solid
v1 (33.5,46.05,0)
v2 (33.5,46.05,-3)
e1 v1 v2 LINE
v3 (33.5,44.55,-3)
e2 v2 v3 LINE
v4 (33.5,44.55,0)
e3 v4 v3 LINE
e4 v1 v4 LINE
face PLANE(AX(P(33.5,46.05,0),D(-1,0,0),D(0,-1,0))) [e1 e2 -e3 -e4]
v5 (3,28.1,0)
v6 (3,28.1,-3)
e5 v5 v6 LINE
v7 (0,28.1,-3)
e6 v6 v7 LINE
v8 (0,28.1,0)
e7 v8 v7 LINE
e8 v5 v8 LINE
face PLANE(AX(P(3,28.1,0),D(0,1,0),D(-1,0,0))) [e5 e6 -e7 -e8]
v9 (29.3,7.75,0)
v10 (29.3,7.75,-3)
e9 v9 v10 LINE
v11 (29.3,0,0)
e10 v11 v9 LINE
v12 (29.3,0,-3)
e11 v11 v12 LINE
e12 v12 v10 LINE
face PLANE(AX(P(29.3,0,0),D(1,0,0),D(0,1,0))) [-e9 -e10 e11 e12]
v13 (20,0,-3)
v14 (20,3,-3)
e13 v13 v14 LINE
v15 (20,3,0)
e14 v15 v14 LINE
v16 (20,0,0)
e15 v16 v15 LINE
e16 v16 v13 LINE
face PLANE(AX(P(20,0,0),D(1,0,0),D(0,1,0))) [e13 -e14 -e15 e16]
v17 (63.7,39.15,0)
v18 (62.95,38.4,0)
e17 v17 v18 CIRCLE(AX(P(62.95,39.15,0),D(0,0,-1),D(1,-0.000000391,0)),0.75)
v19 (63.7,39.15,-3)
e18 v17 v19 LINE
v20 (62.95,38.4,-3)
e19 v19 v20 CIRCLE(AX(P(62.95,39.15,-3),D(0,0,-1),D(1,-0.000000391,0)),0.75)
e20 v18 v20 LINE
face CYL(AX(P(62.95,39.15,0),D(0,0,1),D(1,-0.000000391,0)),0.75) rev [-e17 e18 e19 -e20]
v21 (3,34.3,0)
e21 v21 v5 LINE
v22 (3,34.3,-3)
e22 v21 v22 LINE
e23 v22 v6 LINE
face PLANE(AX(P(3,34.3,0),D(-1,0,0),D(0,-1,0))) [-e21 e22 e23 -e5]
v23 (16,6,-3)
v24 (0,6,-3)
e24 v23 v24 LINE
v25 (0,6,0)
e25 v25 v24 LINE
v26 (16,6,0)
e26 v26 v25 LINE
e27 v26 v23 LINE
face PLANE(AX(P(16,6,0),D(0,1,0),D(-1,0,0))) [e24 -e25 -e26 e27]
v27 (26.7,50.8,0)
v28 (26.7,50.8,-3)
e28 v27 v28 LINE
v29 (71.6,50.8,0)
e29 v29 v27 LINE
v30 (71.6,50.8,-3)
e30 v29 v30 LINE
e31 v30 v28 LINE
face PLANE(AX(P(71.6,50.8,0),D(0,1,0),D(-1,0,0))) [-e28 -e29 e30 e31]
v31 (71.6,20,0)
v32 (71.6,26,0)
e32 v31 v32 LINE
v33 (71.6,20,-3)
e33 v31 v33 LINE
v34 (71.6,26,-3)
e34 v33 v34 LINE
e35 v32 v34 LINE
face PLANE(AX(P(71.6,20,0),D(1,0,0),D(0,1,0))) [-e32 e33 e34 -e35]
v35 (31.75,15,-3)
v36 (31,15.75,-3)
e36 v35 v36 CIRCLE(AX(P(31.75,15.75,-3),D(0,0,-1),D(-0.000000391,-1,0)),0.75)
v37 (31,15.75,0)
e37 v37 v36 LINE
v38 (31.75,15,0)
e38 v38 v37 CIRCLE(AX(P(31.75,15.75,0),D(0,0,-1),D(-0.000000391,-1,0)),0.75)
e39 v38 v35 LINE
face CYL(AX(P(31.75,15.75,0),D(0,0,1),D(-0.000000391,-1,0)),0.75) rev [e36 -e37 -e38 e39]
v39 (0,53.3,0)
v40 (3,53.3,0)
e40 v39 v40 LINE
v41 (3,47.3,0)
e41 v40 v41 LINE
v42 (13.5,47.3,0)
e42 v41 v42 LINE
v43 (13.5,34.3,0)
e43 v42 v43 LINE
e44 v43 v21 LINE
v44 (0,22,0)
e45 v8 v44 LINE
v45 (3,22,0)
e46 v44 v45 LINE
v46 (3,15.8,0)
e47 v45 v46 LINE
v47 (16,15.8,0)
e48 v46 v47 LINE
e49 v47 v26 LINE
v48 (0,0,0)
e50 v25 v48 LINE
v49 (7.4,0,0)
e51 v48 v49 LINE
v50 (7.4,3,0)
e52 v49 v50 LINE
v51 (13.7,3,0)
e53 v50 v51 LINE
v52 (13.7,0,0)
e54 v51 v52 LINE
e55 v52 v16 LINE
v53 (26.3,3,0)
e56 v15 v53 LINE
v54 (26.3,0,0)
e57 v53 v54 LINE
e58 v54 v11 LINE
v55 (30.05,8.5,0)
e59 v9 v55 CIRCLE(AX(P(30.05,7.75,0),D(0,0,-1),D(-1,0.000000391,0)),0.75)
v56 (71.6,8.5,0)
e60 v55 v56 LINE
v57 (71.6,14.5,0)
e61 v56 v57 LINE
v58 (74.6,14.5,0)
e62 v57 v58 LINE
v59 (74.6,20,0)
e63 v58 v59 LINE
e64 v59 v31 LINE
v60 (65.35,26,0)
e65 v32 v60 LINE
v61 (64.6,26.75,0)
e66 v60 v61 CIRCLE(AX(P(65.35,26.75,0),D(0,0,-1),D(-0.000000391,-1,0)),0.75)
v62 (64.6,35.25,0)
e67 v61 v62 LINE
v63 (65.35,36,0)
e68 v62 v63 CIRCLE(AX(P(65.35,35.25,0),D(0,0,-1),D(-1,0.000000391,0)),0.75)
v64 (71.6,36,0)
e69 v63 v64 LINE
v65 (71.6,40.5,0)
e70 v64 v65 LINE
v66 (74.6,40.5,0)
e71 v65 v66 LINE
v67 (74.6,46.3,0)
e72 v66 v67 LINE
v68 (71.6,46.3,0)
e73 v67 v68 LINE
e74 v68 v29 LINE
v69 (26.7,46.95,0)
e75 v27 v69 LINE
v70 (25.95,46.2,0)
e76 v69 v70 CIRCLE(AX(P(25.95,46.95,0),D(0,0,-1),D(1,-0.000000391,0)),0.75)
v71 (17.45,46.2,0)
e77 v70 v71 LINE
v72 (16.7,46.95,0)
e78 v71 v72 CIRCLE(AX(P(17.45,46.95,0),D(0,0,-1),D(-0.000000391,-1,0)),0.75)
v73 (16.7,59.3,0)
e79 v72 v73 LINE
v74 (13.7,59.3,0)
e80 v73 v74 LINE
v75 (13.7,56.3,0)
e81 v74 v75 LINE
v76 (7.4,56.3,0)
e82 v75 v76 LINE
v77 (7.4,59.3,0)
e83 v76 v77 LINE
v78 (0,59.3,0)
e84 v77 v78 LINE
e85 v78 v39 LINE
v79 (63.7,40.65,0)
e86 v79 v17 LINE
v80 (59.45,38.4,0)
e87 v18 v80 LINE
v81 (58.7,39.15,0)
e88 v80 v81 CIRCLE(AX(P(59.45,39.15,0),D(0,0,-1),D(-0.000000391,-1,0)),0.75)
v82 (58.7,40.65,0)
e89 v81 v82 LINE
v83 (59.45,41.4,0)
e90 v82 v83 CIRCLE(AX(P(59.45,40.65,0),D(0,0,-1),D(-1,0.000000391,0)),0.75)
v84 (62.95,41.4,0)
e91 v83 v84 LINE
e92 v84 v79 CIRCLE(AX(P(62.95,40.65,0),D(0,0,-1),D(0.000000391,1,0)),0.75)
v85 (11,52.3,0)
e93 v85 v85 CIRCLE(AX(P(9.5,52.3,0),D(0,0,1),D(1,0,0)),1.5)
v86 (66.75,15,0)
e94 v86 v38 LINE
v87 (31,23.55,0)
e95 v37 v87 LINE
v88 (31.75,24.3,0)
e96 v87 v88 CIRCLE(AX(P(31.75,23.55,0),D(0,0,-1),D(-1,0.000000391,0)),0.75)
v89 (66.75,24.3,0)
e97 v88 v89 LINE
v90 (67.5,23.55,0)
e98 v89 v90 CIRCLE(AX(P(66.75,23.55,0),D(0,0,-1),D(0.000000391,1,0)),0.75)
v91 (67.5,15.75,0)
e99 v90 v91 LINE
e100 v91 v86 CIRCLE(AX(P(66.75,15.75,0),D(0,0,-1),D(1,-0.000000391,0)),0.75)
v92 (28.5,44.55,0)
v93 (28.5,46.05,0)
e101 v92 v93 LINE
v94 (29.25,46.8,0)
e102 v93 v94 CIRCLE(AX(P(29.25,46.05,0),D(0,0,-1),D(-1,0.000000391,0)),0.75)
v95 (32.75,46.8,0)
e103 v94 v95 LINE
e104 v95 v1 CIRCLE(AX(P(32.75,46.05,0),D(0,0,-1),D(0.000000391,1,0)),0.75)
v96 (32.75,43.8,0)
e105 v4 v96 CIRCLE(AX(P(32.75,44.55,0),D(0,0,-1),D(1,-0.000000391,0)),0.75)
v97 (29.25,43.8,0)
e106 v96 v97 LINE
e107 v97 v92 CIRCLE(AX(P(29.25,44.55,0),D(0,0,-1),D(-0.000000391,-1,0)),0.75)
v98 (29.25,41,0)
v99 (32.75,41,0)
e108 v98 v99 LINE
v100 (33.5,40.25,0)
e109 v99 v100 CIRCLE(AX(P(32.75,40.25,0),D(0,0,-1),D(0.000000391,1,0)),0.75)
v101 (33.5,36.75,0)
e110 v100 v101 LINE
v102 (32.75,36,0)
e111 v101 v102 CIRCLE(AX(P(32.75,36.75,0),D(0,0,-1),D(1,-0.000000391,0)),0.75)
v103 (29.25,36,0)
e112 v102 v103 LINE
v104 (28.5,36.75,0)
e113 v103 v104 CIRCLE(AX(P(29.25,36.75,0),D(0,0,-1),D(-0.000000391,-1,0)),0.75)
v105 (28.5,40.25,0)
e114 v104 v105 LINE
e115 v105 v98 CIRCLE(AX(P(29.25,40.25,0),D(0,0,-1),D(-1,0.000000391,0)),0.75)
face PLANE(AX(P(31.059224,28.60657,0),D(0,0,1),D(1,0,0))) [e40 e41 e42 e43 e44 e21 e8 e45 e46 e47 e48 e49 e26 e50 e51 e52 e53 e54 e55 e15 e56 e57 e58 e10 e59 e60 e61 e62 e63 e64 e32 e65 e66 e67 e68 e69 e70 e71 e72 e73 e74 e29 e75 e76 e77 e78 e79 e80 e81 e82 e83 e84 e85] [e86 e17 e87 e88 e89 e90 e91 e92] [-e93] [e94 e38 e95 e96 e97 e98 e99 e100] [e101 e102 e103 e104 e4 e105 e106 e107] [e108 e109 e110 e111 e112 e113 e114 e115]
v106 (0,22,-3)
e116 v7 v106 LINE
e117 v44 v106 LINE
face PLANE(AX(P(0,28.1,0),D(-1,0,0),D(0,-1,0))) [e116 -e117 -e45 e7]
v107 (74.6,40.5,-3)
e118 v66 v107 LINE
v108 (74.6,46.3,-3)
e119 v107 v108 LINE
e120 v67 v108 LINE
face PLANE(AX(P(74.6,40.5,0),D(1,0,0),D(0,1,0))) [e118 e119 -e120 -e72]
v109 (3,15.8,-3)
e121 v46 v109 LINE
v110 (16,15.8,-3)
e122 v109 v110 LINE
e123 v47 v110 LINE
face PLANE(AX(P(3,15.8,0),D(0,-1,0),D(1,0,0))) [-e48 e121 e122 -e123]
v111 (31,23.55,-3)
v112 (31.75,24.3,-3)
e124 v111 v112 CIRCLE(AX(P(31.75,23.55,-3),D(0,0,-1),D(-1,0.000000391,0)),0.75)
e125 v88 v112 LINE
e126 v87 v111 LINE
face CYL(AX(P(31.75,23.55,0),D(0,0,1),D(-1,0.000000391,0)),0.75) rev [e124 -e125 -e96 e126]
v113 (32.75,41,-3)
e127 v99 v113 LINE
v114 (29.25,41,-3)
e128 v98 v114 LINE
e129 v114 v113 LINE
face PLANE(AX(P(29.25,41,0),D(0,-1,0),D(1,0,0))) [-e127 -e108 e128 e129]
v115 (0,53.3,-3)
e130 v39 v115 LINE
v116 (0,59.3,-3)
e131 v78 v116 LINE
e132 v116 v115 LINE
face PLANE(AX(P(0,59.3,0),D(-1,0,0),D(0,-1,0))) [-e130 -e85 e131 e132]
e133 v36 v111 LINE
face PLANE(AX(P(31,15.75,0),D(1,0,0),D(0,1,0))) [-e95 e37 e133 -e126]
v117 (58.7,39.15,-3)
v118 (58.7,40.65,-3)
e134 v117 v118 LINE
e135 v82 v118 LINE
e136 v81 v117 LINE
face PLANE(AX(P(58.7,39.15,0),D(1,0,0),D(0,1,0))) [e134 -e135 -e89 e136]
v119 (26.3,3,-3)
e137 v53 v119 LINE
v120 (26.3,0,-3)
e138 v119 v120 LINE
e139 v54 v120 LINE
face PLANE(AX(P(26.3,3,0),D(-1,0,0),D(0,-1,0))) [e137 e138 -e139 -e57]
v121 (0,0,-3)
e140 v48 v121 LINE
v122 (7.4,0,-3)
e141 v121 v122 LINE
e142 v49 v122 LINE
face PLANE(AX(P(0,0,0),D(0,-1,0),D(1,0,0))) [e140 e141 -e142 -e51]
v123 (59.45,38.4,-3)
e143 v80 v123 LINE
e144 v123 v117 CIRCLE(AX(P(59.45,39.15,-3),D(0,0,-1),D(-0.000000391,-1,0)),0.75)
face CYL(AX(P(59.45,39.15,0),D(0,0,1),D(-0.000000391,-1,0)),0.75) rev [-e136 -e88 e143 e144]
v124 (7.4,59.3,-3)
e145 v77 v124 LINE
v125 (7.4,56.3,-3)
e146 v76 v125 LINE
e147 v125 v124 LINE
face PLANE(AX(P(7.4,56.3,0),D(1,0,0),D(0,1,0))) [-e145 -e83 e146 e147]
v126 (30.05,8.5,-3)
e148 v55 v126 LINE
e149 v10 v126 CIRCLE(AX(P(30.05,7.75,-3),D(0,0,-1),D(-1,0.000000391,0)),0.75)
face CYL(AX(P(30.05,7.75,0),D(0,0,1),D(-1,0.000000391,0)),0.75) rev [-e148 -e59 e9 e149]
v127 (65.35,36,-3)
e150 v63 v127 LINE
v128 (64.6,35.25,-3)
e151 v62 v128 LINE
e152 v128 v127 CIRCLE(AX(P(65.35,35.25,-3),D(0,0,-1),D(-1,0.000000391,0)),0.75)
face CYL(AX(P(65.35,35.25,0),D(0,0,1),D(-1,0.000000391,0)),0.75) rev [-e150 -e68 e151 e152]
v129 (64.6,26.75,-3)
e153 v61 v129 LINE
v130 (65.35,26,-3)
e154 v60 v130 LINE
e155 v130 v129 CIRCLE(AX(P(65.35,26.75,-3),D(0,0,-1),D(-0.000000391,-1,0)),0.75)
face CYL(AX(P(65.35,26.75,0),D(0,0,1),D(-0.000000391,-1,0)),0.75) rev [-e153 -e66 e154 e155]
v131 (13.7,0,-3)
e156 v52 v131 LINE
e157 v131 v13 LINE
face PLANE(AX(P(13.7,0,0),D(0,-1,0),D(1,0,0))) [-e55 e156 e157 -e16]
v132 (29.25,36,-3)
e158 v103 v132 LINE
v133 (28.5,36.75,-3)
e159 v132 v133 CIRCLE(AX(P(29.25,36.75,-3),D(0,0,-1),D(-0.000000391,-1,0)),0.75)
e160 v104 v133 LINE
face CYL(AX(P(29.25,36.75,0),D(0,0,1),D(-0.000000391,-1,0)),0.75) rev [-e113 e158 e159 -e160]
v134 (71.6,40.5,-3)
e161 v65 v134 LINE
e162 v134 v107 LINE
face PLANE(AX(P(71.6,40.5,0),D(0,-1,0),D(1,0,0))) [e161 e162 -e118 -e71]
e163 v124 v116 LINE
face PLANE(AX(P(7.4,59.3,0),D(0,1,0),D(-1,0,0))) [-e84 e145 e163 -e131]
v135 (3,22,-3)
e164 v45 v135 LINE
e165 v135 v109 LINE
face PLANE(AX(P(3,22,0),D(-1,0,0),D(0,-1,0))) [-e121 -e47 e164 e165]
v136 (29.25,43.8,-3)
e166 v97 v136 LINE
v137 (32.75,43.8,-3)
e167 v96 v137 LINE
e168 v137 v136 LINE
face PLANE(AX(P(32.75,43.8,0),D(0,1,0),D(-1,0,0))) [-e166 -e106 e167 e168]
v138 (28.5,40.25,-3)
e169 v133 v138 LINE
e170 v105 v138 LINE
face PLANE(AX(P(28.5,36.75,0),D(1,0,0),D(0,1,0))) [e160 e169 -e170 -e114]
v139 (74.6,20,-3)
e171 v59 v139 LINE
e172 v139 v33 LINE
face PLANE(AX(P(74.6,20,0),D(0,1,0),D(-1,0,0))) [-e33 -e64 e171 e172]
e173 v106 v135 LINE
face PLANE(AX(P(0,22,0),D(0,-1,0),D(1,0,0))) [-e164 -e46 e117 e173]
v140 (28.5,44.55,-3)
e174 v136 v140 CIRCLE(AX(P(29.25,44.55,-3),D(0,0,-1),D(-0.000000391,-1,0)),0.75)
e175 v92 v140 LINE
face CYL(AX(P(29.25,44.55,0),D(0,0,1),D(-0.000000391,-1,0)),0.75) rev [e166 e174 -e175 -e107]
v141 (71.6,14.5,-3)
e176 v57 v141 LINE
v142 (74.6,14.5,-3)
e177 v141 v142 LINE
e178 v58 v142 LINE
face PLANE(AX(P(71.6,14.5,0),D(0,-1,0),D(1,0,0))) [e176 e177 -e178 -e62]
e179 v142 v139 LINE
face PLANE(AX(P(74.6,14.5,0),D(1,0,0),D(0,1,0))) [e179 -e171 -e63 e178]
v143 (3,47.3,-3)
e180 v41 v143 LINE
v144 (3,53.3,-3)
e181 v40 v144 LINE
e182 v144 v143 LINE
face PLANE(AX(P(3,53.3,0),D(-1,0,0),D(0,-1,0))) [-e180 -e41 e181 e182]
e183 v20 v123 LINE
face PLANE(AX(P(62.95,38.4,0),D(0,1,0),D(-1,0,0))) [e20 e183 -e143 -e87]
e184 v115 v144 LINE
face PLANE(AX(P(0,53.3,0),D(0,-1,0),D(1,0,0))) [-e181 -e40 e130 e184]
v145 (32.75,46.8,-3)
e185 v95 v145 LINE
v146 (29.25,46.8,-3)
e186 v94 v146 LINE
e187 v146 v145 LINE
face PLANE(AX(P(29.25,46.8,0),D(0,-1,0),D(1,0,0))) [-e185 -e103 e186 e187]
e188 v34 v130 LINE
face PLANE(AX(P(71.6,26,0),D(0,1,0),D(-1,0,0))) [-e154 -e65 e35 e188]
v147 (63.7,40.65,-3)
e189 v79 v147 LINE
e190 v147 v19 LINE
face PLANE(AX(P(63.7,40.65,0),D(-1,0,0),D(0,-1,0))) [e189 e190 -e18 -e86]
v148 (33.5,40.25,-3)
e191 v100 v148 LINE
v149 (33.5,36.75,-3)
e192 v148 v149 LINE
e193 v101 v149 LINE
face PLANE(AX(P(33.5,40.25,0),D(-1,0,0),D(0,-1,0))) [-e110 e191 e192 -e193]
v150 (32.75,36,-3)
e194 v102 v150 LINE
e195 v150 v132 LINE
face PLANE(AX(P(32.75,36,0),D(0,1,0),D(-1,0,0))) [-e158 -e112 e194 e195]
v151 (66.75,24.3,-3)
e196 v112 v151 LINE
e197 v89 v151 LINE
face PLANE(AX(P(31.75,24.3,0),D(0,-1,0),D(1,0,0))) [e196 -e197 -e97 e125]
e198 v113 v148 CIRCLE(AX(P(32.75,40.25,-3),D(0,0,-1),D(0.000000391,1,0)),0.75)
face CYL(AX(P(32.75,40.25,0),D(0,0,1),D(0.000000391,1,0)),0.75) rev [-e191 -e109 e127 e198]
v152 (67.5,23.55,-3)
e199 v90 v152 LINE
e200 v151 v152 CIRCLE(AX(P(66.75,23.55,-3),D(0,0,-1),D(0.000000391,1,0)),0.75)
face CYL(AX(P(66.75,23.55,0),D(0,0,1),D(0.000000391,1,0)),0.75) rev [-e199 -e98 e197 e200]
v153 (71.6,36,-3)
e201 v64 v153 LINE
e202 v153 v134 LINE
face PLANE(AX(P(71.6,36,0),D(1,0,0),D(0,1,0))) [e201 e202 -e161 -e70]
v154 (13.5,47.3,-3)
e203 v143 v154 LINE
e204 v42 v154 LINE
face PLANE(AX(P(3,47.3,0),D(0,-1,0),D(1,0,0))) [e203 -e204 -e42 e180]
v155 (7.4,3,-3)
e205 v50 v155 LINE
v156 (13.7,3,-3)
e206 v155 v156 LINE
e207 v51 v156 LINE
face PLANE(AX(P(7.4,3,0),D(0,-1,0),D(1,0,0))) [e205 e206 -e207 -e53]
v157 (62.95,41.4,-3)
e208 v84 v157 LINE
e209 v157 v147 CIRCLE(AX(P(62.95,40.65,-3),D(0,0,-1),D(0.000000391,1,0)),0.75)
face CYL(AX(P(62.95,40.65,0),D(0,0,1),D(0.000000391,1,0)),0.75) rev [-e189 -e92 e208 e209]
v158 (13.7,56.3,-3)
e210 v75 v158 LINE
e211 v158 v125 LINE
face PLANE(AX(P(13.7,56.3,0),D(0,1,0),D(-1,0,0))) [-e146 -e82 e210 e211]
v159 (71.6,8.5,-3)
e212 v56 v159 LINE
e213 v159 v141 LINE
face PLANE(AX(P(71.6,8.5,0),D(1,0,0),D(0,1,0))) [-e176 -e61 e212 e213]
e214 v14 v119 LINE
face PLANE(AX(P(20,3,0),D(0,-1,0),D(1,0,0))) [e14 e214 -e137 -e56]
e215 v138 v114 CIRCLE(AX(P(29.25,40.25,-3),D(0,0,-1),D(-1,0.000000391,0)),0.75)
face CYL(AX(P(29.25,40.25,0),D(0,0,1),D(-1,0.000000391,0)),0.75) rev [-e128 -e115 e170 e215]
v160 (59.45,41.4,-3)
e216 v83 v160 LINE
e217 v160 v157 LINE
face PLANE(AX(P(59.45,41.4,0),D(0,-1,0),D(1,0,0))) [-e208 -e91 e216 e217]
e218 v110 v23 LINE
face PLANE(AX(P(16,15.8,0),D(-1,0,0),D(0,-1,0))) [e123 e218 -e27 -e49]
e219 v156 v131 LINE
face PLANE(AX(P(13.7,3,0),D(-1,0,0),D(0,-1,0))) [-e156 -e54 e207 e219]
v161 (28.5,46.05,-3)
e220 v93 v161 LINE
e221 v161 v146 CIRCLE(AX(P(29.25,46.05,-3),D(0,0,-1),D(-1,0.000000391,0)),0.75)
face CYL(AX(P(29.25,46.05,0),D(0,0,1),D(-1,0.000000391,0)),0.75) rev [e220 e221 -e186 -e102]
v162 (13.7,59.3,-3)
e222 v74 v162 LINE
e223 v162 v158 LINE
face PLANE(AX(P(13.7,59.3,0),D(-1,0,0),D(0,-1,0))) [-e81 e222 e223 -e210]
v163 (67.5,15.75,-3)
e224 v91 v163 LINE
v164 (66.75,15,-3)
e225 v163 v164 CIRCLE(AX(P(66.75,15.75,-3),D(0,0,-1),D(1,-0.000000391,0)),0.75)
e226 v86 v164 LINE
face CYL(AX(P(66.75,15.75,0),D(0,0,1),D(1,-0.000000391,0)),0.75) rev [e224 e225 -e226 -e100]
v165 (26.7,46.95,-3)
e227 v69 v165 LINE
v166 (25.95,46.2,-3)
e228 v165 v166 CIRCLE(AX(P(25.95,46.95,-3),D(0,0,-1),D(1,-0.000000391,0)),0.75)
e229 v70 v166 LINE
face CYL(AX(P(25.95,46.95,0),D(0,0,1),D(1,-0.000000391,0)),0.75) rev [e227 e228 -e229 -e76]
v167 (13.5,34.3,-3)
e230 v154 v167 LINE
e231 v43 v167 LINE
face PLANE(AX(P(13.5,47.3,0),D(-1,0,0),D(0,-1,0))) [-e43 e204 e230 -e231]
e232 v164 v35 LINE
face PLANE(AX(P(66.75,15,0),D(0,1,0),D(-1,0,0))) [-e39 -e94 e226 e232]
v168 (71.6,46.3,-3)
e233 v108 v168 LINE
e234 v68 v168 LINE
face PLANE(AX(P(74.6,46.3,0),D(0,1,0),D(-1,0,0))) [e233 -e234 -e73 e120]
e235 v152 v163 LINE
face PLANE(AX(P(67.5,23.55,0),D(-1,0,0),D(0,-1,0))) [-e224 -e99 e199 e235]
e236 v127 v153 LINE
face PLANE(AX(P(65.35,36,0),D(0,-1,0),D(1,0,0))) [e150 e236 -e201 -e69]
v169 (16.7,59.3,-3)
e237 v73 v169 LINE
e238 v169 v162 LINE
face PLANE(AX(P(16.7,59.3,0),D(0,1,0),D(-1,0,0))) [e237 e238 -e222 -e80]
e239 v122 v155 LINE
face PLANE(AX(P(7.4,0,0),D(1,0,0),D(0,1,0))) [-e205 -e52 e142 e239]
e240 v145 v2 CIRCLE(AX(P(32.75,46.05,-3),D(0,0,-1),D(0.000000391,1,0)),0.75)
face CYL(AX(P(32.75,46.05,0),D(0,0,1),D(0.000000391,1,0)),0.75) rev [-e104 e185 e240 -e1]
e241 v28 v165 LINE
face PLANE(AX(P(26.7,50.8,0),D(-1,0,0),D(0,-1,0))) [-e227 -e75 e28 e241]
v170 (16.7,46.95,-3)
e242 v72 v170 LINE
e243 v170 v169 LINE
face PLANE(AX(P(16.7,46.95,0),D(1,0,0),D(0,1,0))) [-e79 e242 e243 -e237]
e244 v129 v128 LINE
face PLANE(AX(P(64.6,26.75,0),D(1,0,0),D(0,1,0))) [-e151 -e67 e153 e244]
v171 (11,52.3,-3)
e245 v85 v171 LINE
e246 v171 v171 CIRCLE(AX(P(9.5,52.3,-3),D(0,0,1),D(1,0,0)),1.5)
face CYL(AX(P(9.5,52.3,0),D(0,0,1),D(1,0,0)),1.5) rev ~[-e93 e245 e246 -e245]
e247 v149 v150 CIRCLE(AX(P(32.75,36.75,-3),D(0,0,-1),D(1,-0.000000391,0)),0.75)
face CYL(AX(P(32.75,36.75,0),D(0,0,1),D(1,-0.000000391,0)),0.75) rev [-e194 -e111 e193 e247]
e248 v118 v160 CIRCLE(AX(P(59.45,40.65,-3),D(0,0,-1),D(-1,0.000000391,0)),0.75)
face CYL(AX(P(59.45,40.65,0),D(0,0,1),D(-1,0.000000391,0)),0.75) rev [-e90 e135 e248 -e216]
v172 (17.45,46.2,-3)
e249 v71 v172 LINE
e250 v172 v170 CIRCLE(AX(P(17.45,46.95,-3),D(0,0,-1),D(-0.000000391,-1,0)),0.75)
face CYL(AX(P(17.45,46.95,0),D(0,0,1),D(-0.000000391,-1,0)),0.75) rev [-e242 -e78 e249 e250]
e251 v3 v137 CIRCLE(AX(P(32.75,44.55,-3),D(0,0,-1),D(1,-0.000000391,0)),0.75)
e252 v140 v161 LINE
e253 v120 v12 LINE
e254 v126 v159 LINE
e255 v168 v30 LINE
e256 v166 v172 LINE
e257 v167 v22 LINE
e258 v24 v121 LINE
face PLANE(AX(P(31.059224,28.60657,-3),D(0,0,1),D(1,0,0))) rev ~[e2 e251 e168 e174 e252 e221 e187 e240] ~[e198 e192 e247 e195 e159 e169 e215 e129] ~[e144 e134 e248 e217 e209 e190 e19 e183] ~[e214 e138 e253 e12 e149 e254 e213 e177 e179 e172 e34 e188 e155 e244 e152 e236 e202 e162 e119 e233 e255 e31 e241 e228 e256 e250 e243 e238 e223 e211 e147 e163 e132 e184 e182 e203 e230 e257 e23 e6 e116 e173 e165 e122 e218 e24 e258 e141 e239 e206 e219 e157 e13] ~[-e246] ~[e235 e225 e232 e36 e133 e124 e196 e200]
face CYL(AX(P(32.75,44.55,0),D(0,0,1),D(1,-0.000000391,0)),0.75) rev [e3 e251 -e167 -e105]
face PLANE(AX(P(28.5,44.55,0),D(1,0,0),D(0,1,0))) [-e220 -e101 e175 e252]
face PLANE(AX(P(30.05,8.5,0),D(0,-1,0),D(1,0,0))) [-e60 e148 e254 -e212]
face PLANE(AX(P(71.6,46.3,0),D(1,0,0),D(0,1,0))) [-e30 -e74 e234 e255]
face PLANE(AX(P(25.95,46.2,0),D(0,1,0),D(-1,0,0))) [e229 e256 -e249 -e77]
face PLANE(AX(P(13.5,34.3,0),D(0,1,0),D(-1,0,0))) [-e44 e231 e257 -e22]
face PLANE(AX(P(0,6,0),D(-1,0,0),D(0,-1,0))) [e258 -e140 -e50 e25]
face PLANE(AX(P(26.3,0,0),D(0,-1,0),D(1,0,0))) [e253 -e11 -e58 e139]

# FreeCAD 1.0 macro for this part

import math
import FreeCAD as App
import Part
import Sketcher

V = App.Vector

doc = App.newDocument("Part")
body = doc.addObject("PartDesign::Body", "Body")

sketch1 = body.newObject("Sketcher::SketchObject", "Sketch")
sketch1.AttachmentSupport = (doc.getObject("XY_Plane"), [""])
sketch1.MapMode = "FlatFace"
sketch1.addGeometry(Part.LineSegment(V(0, 6, 0), V(0, 0, 0)), False)
sketch1.addGeometry(Part.LineSegment(V(0, 0, 0), V(7.4, 0, 0)), False)
sketch1.addGeometry(Part.LineSegment(V(7.4, 0, 0), V(7.4, 3, 0)), False)
sketch1.addGeometry(Part.LineSegment(V(7.4, 3, 0), V(13.7, 3, 0)), False)
sketch1.addGeometry(Part.LineSegment(V(13.7, 3, 0), V(13.7, 0, 0)), False)
sketch1.addGeometry(Part.LineSegment(V(13.7, 0, 0), V(20, 0, 0)), False)
sketch1.addGeometry(Part.LineSegment(V(20, 0, 0), V(20, 3, 0)), False)
sketch1.addGeometry(Part.LineSegment(V(20, 3, 0), V(26.3, 3, 0)), False)
sketch1.addGeometry(Part.LineSegment(V(26.3, 3, 0), V(26.3, 0, 0)), False)
sketch1.addGeometry(Part.LineSegment(V(26.3, 0, 0), V(29.3, 0, 0)), False)
sketch1.addGeometry(Part.LineSegment(V(29.3, 0, 0), V(29.3, 7.75, 0)), False)
sketch1.addGeometry(Part.ArcOfCircle(Part.Circle(V(30.05, 7.75, 0), V(0, 0, 1), 0.75), math.radians(90.000022), math.radians(179.999978)), False)
sketch1.addGeometry(Part.LineSegment(V(30.05, 8.5, 0), V(71.6, 8.5, 0)), False)
sketch1.addGeometry(Part.LineSegment(V(71.6, 8.5, 0), V(71.6, 14.5, 0)), False)
sketch1.addGeometry(Part.LineSegment(V(71.6, 14.5, 0), V(74.6, 14.5, 0)), False)
sketch1.addGeometry(Part.LineSegment(V(74.6, 14.5, 0), V(74.6, 20, 0)), False)
sketch1.addGeometry(Part.LineSegment(V(74.6, 20, 0), V(71.6, 20, 0)), False)
sketch1.addGeometry(Part.LineSegment(V(71.6, 20, 0), V(71.6, 26, 0)), False)
sketch1.addGeometry(Part.LineSegment(V(71.6, 26, 0), V(65.35, 26, 0)), False)
sketch1.addGeometry(Part.ArcOfCircle(Part.Circle(V(65.35, 26.75, 0), V(0, 0, 1), 0.75), math.radians(-179.999978), math.radians(-90.000022)), False)
sketch1.addGeometry(Part.LineSegment(V(64.6, 26.75, 0), V(64.6, 35.25, 0)), False)
sketch1.addGeometry(Part.ArcOfCircle(Part.Circle(V(65.35, 35.25, 0), V(0, 0, 1), 0.75), math.radians(90.000022), math.radians(179.999978)), False)
sketch1.addGeometry(Part.LineSegment(V(65.35, 36, 0), V(71.6, 36, 0)), False)
sketch1.addGeometry(Part.LineSegment(V(71.6, 36, 0), V(71.6, 40.5, 0)), False)
sketch1.addGeometry(Part.LineSegment(V(71.6, 40.5, 0), V(74.6, 40.5, 0)), False)
sketch1.addGeometry(Part.LineSegment(V(74.6, 40.5, 0), V(74.6, 46.3, 0)), False)
sketch1.addGeometry(Part.LineSegment(V(74.6, 46.3, 0), V(71.6, 46.3, 0)), False)
sketch1.addGeometry(Part.LineSegment(V(71.6, 46.3, 0), V(71.6, 50.8, 0)), False)
sketch1.addGeometry(Part.LineSegment(V(71.6, 50.8, 0), V(26.7, 50.8, 0)), False)
sketch1.addGeometry(Part.LineSegment(V(26.7, 50.8, 0), V(26.7, 46.95, 0)), False)
sketch1.addGeometry(Part.ArcOfCircle(Part.Circle(V(25.95, 46.95, 0), V(0, 0, 1), 0.75), math.radians(-89.999978), math.radians(-0.000022)), False)
sketch1.addGeometry(Part.LineSegment(V(25.95, 46.2, 0), V(17.45, 46.2, 0)), False)
sketch1.addGeometry(Part.ArcOfCircle(Part.Circle(V(17.45, 46.95, 0), V(0, 0, 1), 0.75), math.radians(-179.999978), math.radians(-90.000022)), False)
sketch1.addGeometry(Part.LineSegment(V(16.7, 46.95, 0), V(16.7, 59.3, 0)), False)
sketch1.addGeometry(Part.LineSegment(V(16.7, 59.3, 0), V(13.7, 59.3, 0)), False)
sketch1.addGeometry(Part.LineSegment(V(13.7, 59.3, 0), V(13.7, 56.3, 0)), False)
sketch1.addGeometry(Part.LineSegment(V(13.7, 56.3, 0), V(7.4, 56.3, 0)), False)
sketch1.addGeometry(Part.LineSegment(V(7.4, 56.3, 0), V(7.4, 59.3, 0)), False)
sketch1.addGeometry(Part.LineSegment(V(7.4, 59.3, 0), V(0, 59.3, 0)), False)
sketch1.addGeometry(Part.LineSegment(V(0, 59.3, 0), V(0, 53.3, 0)), False)
sketch1.addGeometry(Part.LineSegment(V(0, 53.3, 0), V(3, 53.3, 0)), False)
sketch1.addGeometry(Part.LineSegment(V(3, 53.3, 0), V(3, 47.3, 0)), False)
sketch1.addGeometry(Part.LineSegment(V(3, 47.3, 0), V(13.5, 47.3, 0)), False)
sketch1.addGeometry(Part.LineSegment(V(13.5, 47.3, 0), V(13.5, 34.3, 0)), False)
sketch1.addGeometry(Part.LineSegment(V(13.5, 34.3, 0), V(3, 34.3, 0)), False)
sketch1.addGeometry(Part.LineSegment(V(3, 34.3, 0), V(3, 28.1, 0)), False)
sketch1.addGeometry(Part.LineSegment(V(3, 28.1, 0), V(0, 28.1, 0)), False)
sketch1.addGeometry(Part.LineSegment(V(0, 28.1, 0), V(0, 22, 0)), False)
sketch1.addGeometry(Part.LineSegment(V(0, 22, 0), V(3, 22, 0)), False)
sketch1.addGeometry(Part.LineSegment(V(3, 22, 0), V(3, 15.8, 0)), False)
sketch1.addGeometry(Part.LineSegment(V(3, 15.8, 0), V(16, 15.8, 0)), False)
sketch1.addGeometry(Part.LineSegment(V(16, 15.8, 0), V(16, 6, 0)), False)
sketch1.addGeometry(Part.LineSegment(V(16, 6, 0), V(0, 6, 0)), False)
sketch1.addGeometry(Part.ArcOfCircle(Part.Circle(V(66.75, 15.75, 0), V(0, 0, 1), 0.75), math.radians(-89.999978), math.radians(-0.000022)), False)
sketch1.addGeometry(Part.LineSegment(V(66.75, 15, 0), V(31.75, 15, 0)), False)
sketch1.addGeometry(Part.ArcOfCircle(Part.Circle(V(31.75, 15.75, 0), V(0, 0, 1), 0.75), math.radians(-179.999978), math.radians(-90.000022)), False)
sketch1.addGeometry(Part.LineSegment(V(31, 15.75, 0), V(31, 23.55, 0)), False)
sketch1.addGeometry(Part.ArcOfCircle(Part.Circle(V(31.75, 23.55, 0), V(0, 0, 1), 0.75), math.radians(90.000022), math.radians(179.999978)), False)
sketch1.addGeometry(Part.LineSegment(V(31.75, 24.3, 0), V(66.75, 24.3, 0)), False)
sketch1.addGeometry(Part.ArcOfCircle(Part.Circle(V(66.75, 23.55, 0), V(0, 0, 1), 0.75), math.radians(0.000022), math.radians(89.999978)), False)
sketch1.addGeometry(Part.LineSegment(V(67.5, 23.55, 0), V(67.5, 15.75, 0)), False)
sketch1.addGeometry(Part.ArcOfCircle(Part.Circle(V(32.75, 36.75, 0), V(0, 0, 1), 0.75), math.radians(-89.999978), math.radians(-0.000022)), False)
sketch1.addGeometry(Part.LineSegment(V(32.75, 36, 0), V(29.25, 36, 0)), False)
sketch1.addGeometry(Part.ArcOfCircle(Part.Circle(V(29.25, 36.75, 0), V(0, 0, 1), 0.75), math.radians(-179.999978), math.radians(-90.000022)), False)
sketch1.addGeometry(Part.LineSegment(V(28.5, 36.75, 0), V(28.5, 40.25, 0)), False)
sketch1.addGeometry(Part.ArcOfCircle(Part.Circle(V(29.25, 40.25, 0), V(0, 0, 1), 0.75), math.radians(90.000022), math.radians(179.999978)), False)
sketch1.addGeometry(Part.LineSegment(V(29.25, 41, 0), V(32.75, 41, 0)), False)
sketch1.addGeometry(Part.ArcOfCircle(Part.Circle(V(32.75, 40.25, 0), V(0, 0, 1), 0.75), math.radians(0.000022), math.radians(89.999978)), False)
sketch1.addGeometry(Part.LineSegment(V(33.5, 40.25, 0), V(33.5, 36.75, 0)), False)
sketch1.addGeometry(Part.Circle(V(9.5, 52.3, 0), V(0, 0, 1), 1.5), False)
sketch1.addGeometry(Part.ArcOfCircle(Part.Circle(V(32.75, 44.55, 0), V(0, 0, 1), 0.75), math.radians(-89.999978), math.radians(-0.000022)), False)
sketch1.addGeometry(Part.LineSegment(V(32.75, 43.8, 0), V(29.25, 43.8, 0)), False)
sketch1.addGeometry(Part.ArcOfCircle(Part.Circle(V(29.25, 44.55, 0), V(0, 0, 1), 0.75), math.radians(-179.999978), math.radians(-90.000022)), False)
sketch1.addGeometry(Part.LineSegment(V(28.5, 44.55, 0), V(28.5, 46.05, 0)), False)
sketch1.addGeometry(Part.ArcOfCircle(Part.Circle(V(29.25, 46.05, 0), V(0, 0, 1), 0.75), math.radians(90.000022), math.radians(179.999978)), False)
sketch1.addGeometry(Part.LineSegment(V(29.25, 46.8, 0), V(32.75, 46.8, 0)), False)
sketch1.addGeometry(Part.ArcOfCircle(Part.Circle(V(32.75, 46.05, 0), V(0, 0, 1), 0.75), math.radians(0.000022), math.radians(89.999978)), False)
sketch1.addGeometry(Part.LineSegment(V(33.5, 46.05, 0), V(33.5, 44.55, 0)), False)
sketch1.addGeometry(Part.ArcOfCircle(Part.Circle(V(62.95, 39.15, 0), V(0, 0, 1), 0.75), math.radians(-89.999978), math.radians(-0.000022)), False)
sketch1.addGeometry(Part.LineSegment(V(62.95, 38.4, 0), V(59.45, 38.4, 0)), False)
sketch1.addGeometry(Part.ArcOfCircle(Part.Circle(V(59.45, 39.15, 0), V(0, 0, 1), 0.75), math.radians(-179.999978), math.radians(-90.000022)), False)
sketch1.addGeometry(Part.LineSegment(V(58.7, 39.15, 0), V(58.7, 40.65, 0)), False)
sketch1.addGeometry(Part.ArcOfCircle(Part.Circle(V(59.45, 40.65, 0), V(0, 0, 1), 0.75), math.radians(90.000022), math.radians(179.999978)), False)
sketch1.addGeometry(Part.LineSegment(V(59.45, 41.4, 0), V(62.95, 41.4, 0)), False)
sketch1.addGeometry(Part.ArcOfCircle(Part.Circle(V(62.95, 40.65, 0), V(0, 0, 1), 0.75), math.radians(0.000022), math.radians(89.999978)), False)
sketch1.addGeometry(Part.LineSegment(V(63.7, 40.65, 0), V(63.7, 39.15, 0)), False)
sketch1.addConstraint(Sketcher.Constraint("Coincident", 0, 2, 1, 1))
sketch1.addConstraint(Sketcher.Constraint("Coincident", 1, 2, 2, 1))
sketch1.addConstraint(Sketcher.Constraint("Coincident", 2, 2, 3, 1))
sketch1.addConstraint(Sketcher.Constraint("Coincident", 3, 2, 4, 1))
sketch1.addConstraint(Sketcher.Constraint("Coincident", 4, 2, 5, 1))
sketch1.addConstraint(Sketcher.Constraint("Coincident", 5, 2, 6, 1))
sketch1.addConstraint(Sketcher.Constraint("Coincident", 6, 2, 7, 1))
sketch1.addConstraint(Sketcher.Constraint("Coincident", 7, 2, 8, 1))
sketch1.addConstraint(Sketcher.Constraint("Coincident", 8, 2, 9, 1))
sketch1.addConstraint(Sketcher.Constraint("Coincident", 9, 2, 10, 1))
sketch1.addConstraint(Sketcher.Constraint("Tangent", 10, 2, 11, 2))
sketch1.addConstraint(Sketcher.Constraint("Tangent", 11, 1, 12, 1))
sketch1.addConstraint(Sketcher.Constraint("Coincident", 12, 2, 13, 1))
sketch1.addConstraint(Sketcher.Constraint("Coincident", 13, 2, 14, 1))
sketch1.addConstraint(Sketcher.Constraint("Coincident", 14, 2, 15, 1))
sketch1.addConstraint(Sketcher.Constraint("Coincident", 15, 2, 16, 1))
sketch1.addConstraint(Sketcher.Constraint("Coincident", 16, 2, 17, 1))
sketch1.addConstraint(Sketcher.Constraint("Coincident", 17, 2, 18, 1))
sketch1.addConstraint(Sketcher.Constraint("Tangent", 18, 2, 19, 2))
sketch1.addConstraint(Sketcher.Constraint("Tangent", 19, 1, 20, 1))
sketch1.addConstraint(Sketcher.Constraint("Tangent", 20, 2, 21, 2))
sketch1.addConstraint(Sketcher.Constraint("Tangent", 21, 1, 22, 1))
sketch1.addConstraint(Sketcher.Constraint("Coincident", 22, 2, 23, 1))
sketch1.addConstraint(Sketcher.Constraint("Coincident", 23, 2, 24, 1))
sketch1.addConstraint(Sketcher.Constraint("Coincident", 24, 2, 25, 1))
sketch1.addConstraint(Sketcher.Constraint("Coincident", 25, 2, 26, 1))
sketch1.addConstraint(Sketcher.Constraint("Coincident", 26, 2, 27, 1))
sketch1.addConstraint(Sketcher.Constraint("Coincident", 27, 2, 28, 1))
sketch1.addConstraint(Sketcher.Constraint("Coincident", 28, 2, 29, 1))
sketch1.addConstraint(Sketcher.Constraint("Tangent", 29, 2, 30, 2))
sketch1.addConstraint(Sketcher.Constraint("Tangent", 30, 1, 31, 1))
sketch1.addConstraint(Sketcher.Constraint("Tangent", 31, 2, 32, 2))
sketch1.addConstraint(Sketcher.Constraint("Tangent", 32, 1, 33, 1))
sketch1.addConstraint(Sketcher.Constraint("Coincident", 33, 2, 34, 1))
sketch1.addConstraint(Sketcher.Constraint("Coincident", 34, 2, 35, 1))
sketch1.addConstraint(Sketcher.Constraint("Coincident", 35, 2, 36, 1))
sketch1.addConstraint(Sketcher.Constraint("Coincident", 36, 2, 37, 1))
sketch1.addConstraint(Sketcher.Constraint("Coincident", 37, 2, 38, 1))
sketch1.addConstraint(Sketcher.Constraint("Coincident", 38, 2, 39, 1))
sketch1.addConstraint(Sketcher.Constraint("Coincident", 39, 2, 40, 1))
sketch1.addConstraint(Sketcher.Constraint("Coincident", 40, 2, 41, 1))
sketch1.addConstraint(Sketcher.Constraint("Coincident", 41, 2, 42, 1))
sketch1.addConstraint(Sketcher.Constraint("Coincident", 42, 2, 43, 1))
sketch1.addConstraint(Sketcher.Constraint("Coincident", 43, 2, 44, 1))
sketch1.addConstraint(Sketcher.Constraint("Coincident", 44, 2, 45, 1))
sketch1.addConstraint(Sketcher.Constraint("Coincident", 45, 2, 46, 1))
sketch1.addConstraint(Sketcher.Constraint("Coincident", 46, 2, 47, 1))
sketch1.addConstraint(Sketcher.Constraint("Coincident", 47, 2, 48, 1))
sketch1.addConstraint(Sketcher.Constraint("Coincident", 48, 2, 49, 1))
sketch1.addConstraint(Sketcher.Constraint("Coincident", 49, 2, 50, 1))
sketch1.addConstraint(Sketcher.Constraint("Coincident", 50, 2, 51, 1))
sketch1.addConstraint(Sketcher.Constraint("Coincident", 51, 2, 52, 1))
sketch1.addConstraint(Sketcher.Constraint("Coincident", 52, 2, 0, 1))
sketch1.addConstraint(Sketcher.Constraint("Tangent", 53, 1, 54, 1))
sketch1.addConstraint(Sketcher.Constraint("Tangent", 54, 2, 55, 2))
sketch1.addConstraint(Sketcher.Constraint("Tangent", 55, 1, 56, 1))
sketch1.addConstraint(Sketcher.Constraint("Tangent", 56, 2, 57, 2))
sketch1.addConstraint(Sketcher.Constraint("Tangent", 57, 1, 58, 1))
sketch1.addConstraint(Sketcher.Constraint("Tangent", 58, 2, 59, 2))
sketch1.addConstraint(Sketcher.Constraint("Tangent", 59, 1, 60, 1))
sketch1.addConstraint(Sketcher.Constraint("Tangent", 60, 2, 53, 2))
sketch1.addConstraint(Sketcher.Constraint("Tangent", 61, 1, 62, 1))
sketch1.addConstraint(Sketcher.Constraint("Tangent", 62, 2, 63, 2))
sketch1.addConstraint(Sketcher.Constraint("Tangent", 63, 1, 64, 1))
sketch1.addConstraint(Sketcher.Constraint("Tangent", 64, 2, 65, 2))
sketch1.addConstraint(Sketcher.Constraint("Tangent", 65, 1, 66, 1))
sketch1.addConstraint(Sketcher.Constraint("Tangent", 66, 2, 67, 2))
sketch1.addConstraint(Sketcher.Constraint("Tangent", 67, 1, 68, 1))
sketch1.addConstraint(Sketcher.Constraint("Tangent", 68, 2, 61, 2))
sketch1.addConstraint(Sketcher.Constraint("Tangent", 70, 1, 71, 1))
sketch1.addConstraint(Sketcher.Constraint("Tangent", 71, 2, 72, 2))
sketch1.addConstraint(Sketcher.Constraint("Tangent", 72, 1, 73, 1))
sketch1.addConstraint(Sketcher.Constraint("Tangent", 73, 2, 74, 2))
sketch1.addConstraint(Sketcher.Constraint("Tangent", 74, 1, 75, 1))
sketch1.addConstraint(Sketcher.Constraint("Tangent", 75, 2, 76, 2))
sketch1.addConstraint(Sketcher.Constraint("Tangent", 76, 1, 77, 1))
sketch1.addConstraint(Sketcher.Constraint("Tangent", 77, 2, 70, 2))
sketch1.addConstraint(Sketcher.Constraint("Tangent", 78, 1, 79, 1))
sketch1.addConstraint(Sketcher.Constraint("Tangent", 79, 2, 80, 2))
sketch1.addConstraint(Sketcher.Constraint("Tangent", 80, 1, 81, 1))
sketch1.addConstraint(Sketcher.Constraint("Tangent", 81, 2, 82, 2))
sketch1.addConstraint(Sketcher.Constraint("Tangent", 82, 1, 83, 1))
sketch1.addConstraint(Sketcher.Constraint("Tangent", 83, 2, 84, 2))
sketch1.addConstraint(Sketcher.Constraint("Tangent", 84, 1, 85, 1))
sketch1.addConstraint(Sketcher.Constraint("Tangent", 85, 2, 78, 2))
sketch1.addConstraint(Sketcher.Constraint("Vertical", 0))
sketch1.addConstraint(Sketcher.Constraint("Horizontal", 1))
sketch1.addConstraint(Sketcher.Constraint("Vertical", 2))
sketch1.addConstraint(Sketcher.Constraint("Horizontal", 3))
sketch1.addConstraint(Sketcher.Constraint("Vertical", 4))
sketch1.addConstraint(Sketcher.Constraint("Horizontal", 5))
sketch1.addConstraint(Sketcher.Constraint("Vertical", 6))
sketch1.addConstraint(Sketcher.Constraint("Horizontal", 7))
sketch1.addConstraint(Sketcher.Constraint("Vertical", 8))
sketch1.addConstraint(Sketcher.Constraint("Horizontal", 9))
sketch1.addConstraint(Sketcher.Constraint("Vertical", 10))
sketch1.addConstraint(Sketcher.Constraint("Horizontal", 12))
sketch1.addConstraint(Sketcher.Constraint("Vertical", 13))
sketch1.addConstraint(Sketcher.Constraint("Horizontal", 14))
sketch1.addConstraint(Sketcher.Constraint("Vertical", 15))
sketch1.addConstraint(Sketcher.Constraint("Horizontal", 16))
sketch1.addConstraint(Sketcher.Constraint("Vertical", 17))
sketch1.addConstraint(Sketcher.Constraint("Horizontal", 18))
sketch1.addConstraint(Sketcher.Constraint("Vertical", 20))
sketch1.addConstraint(Sketcher.Constraint("Horizontal", 22))
sketch1.addConstraint(Sketcher.Constraint("Vertical", 23))
sketch1.addConstraint(Sketcher.Constraint("Horizontal", 24))
sketch1.addConstraint(Sketcher.Constraint("Vertical", 25))
sketch1.addConstraint(Sketcher.Constraint("Horizontal", 26))
sketch1.addConstraint(Sketcher.Constraint("Vertical", 27))
sketch1.addConstraint(Sketcher.Constraint("Horizontal", 28))
sketch1.addConstraint(Sketcher.Constraint("Vertical", 29))
sketch1.addConstraint(Sketcher.Constraint("Horizontal", 31))
sketch1.addConstraint(Sketcher.Constraint("Vertical", 33))
sketch1.addConstraint(Sketcher.Constraint("Horizontal", 34))
sketch1.addConstraint(Sketcher.Constraint("Vertical", 35))
sketch1.addConstraint(Sketcher.Constraint("Horizontal", 36))
sketch1.addConstraint(Sketcher.Constraint("Vertical", 37))
sketch1.addConstraint(Sketcher.Constraint("Horizontal", 38))
sketch1.addConstraint(Sketcher.Constraint("Vertical", 39))
sketch1.addConstraint(Sketcher.Constraint("Horizontal", 40))
sketch1.addConstraint(Sketcher.Constraint("Vertical", 41))
sketch1.addConstraint(Sketcher.Constraint("Horizontal", 42))
sketch1.addConstraint(Sketcher.Constraint("Vertical", 43))
sketch1.addConstraint(Sketcher.Constraint("Horizontal", 44))
sketch1.addConstraint(Sketcher.Constraint("Vertical", 45))
sketch1.addConstraint(Sketcher.Constraint("Horizontal", 46))
sketch1.addConstraint(Sketcher.Constraint("Vertical", 47))
sketch1.addConstraint(Sketcher.Constraint("Horizontal", 48))
sketch1.addConstraint(Sketcher.Constraint("Vertical", 49))
sketch1.addConstraint(Sketcher.Constraint("Horizontal", 50))
sketch1.addConstraint(Sketcher.Constraint("Vertical", 51))
sketch1.addConstraint(Sketcher.Constraint("Horizontal", 52))
sketch1.addConstraint(Sketcher.Constraint("Horizontal", 54))
sketch1.addConstraint(Sketcher.Constraint("Vertical", 56))
sketch1.addConstraint(Sketcher.Constraint("Horizontal", 58))
sketch1.addConstraint(Sketcher.Constraint("Vertical", 60))
sketch1.addConstraint(Sketcher.Constraint("Horizontal", 62))
sketch1.addConstraint(Sketcher.Constraint("Vertical", 64))
sketch1.addConstraint(Sketcher.Constraint("Horizontal", 66))
sketch1.addConstraint(Sketcher.Constraint("Vertical", 68))
sketch1.addConstraint(Sketcher.Constraint("Horizontal", 71))
sketch1.addConstraint(Sketcher.Constraint("Vertical", 73))
sketch1.addConstraint(Sketcher.Constraint("Horizontal", 75))
sketch1.addConstraint(Sketcher.Constraint("Vertical", 77))
sketch1.addConstraint(Sketcher.Constraint("Horizontal", 79))
sketch1.addConstraint(Sketcher.Constraint("Vertical", 81))
sketch1.addConstraint(Sketcher.Constraint("Horizontal", 83))
sketch1.addConstraint(Sketcher.Constraint("Vertical", 85))
sketch1.addConstraint(Sketcher.Constraint("Coincident", 0, 2, -1, 1))
sketch1.addConstraint(Sketcher.Constraint("Equal", 11, 19))
sketch1.addConstraint(Sketcher.Constraint("Equal", 19, 21))
sketch1.addConstraint(Sketcher.Constraint("Equal", 21, 30))
sketch1.addConstraint(Sketcher.Constraint("Equal", 30, 32))
sketch1.addConstraint(Sketcher.Constraint("Equal", 32, 53))
sketch1.addConstraint(Sketcher.Constraint("Equal", 53, 55))
sketch1.addConstraint(Sketcher.Constraint("Equal", 55, 57))
sketch1.addConstraint(Sketcher.Constraint("Equal", 57, 59))
sketch1.addConstraint(Sketcher.Constraint("Equal", 59, 61))
sketch1.addConstraint(Sketcher.Constraint("Equal", 61, 63))
sketch1.addConstraint(Sketcher.Constraint("Equal", 63, 65))
sketch1.addConstraint(Sketcher.Constraint("Equal", 65, 67))
sketch1.addConstraint(Sketcher.Constraint("Equal", 67, 70))
sketch1.addConstraint(Sketcher.Constraint("Equal", 70, 72))
sketch1.addConstraint(Sketcher.Constraint("Equal", 72, 74))
sketch1.addConstraint(Sketcher.Constraint("Equal", 74, 76))
sketch1.addConstraint(Sketcher.Constraint("Equal", 76, 78))
sketch1.addConstraint(Sketcher.Constraint("Equal", 78, 80))
sketch1.addConstraint(Sketcher.Constraint("Equal", 80, 82))
sketch1.addConstraint(Sketcher.Constraint("Equal", 82, 84))
sketch1.addConstraint(Sketcher.Constraint("PointOnObject", 4, 2, -1))
sketch1.addConstraint(Sketcher.Constraint("PointOnObject", 8, 2, -1))
sketch1.addConstraint(Sketcher.Constraint("PointOnObject", 38, 2, -2))
sketch1.addConstraint(Sketcher.Constraint("PointOnObject", 46, 2, -2))
sketch1.addConstraint(Sketcher.Constraint("Horizontal", 3, 2, 6, 2))
sketch1.addConstraint(Sketcher.Constraint("Horizontal", 34, 2, 37, 2))
sketch1.addConstraint(Sketcher.Constraint("Horizontal", 22, 2, 61, 1))
sketch1.addConstraint(Sketcher.Constraint("Vertical", 67, 3, 70, 3))
sketch1.addConstraint(Sketcher.Constraint("Vertical", 65, 3, 72, 3))
sketch1.addConstraint(Sketcher.Constraint("Vertical", 13, 2, 16, 2))
sketch1.addConstraint(Sketcher.Constraint("Vertical", 17, 2, 22, 2))
sketch1.addConstraint(Sketcher.Constraint("Vertical", 15, 2, 24, 2))
sketch1.addConstraint(Sketcher.Constraint("Vertical", 23, 2, 26, 2))
sketch1.addConstraint(Sketcher.Constraint("Vertical", 4, 2, 34, 2))
sketch1.addConstraint(Sketcher.Constraint("Vertical", 2, 2, 36, 2))
sketch1.addConstraint(Sketcher.Constraint("Vertical", 41, 2, 44, 2))
sketch1.addConstraint(Sketcher.Constraint("Vertical", 45, 2, 48, 2))
sketch1.addConstraint(Sketcher.Constraint("Equal", 3, 5))
sketch1.addConstraint(Sketcher.Constraint("Equal", 5, 7))
sketch1.addConstraint(Sketcher.Constraint("Equal", 9, 14))
sketch1.addConstraint(Sketcher.Constraint("Equal", 26, 34))
sketch1.addConstraint(Sketcher.Constraint("Equal", 34, 40))
sketch1.addConstraint(Sketcher.Constraint("Equal", 75, 79))
sketch1.addConstraint(Sketcher.Constraint("Equal", 48, 2))
sketch1.addConstraint(Sketcher.Constraint("Equal", 0, 13))
sketch1.addConstraint(Sketcher.Constraint("Equal", 13, 17))
sketch1.addConstraint(Sketcher.Constraint("Equal", 31, 20))
sketch1.addConstraint(Sketcher.Constraint("Equal", 23, 27))
sketch1.addConstraint(Sketcher.Constraint("Equal", 8, 35))
sketch1.addConstraint(Sketcher.Constraint("Equal", 17, 39))
sketch1.addConstraint(Sketcher.Constraint("Equal", 39, 41))
sketch1.addConstraint(Sketcher.Constraint("Equal", 50, 43))
sketch1.addConstraint(Sketcher.Constraint("Equal", 45, 49))
sketch1.addConstraint(Sketcher.Constraint("Equal", 83, 64))
sketch1.addConstraint(Sketcher.Constraint("Equal", 77, 81))
sketch1.addConstraint(Sketcher.Constraint("Diameter", 69, 3.0))
sketch1.addConstraint(Sketcher.Constraint("DistanceX", 9, 1, 9, 2, 3.0))
sketch1.addConstraint(Sketcher.Constraint("DistanceX", 50, 1, 50, 2, 13.0))
sketch1.addConstraint(Sketcher.Constraint("DistanceX", 54, 2, 54, 1, 35.0))
sketch1.addConstraint(Sketcher.Constraint("DistanceY", 0, 2, 0, 1, 6.0))
sketch1.addConstraint(Sketcher.Constraint("Radius", 11, 0.75))
sketch1.addConstraint(Sketcher.Constraint("DistanceX", 1, 1, 1, 2, 7.4))
sketch1.addConstraint(Sketcher.Constraint("DistanceX", 3, 1, 3, 2, 6.3))
sketch1.addConstraint(Sketcher.Constraint("DistanceX", 28, 2, 28, 1, 44.9))
sketch1.addConstraint(Sketcher.Constraint("DistanceX", 31, 2, 31, 1, 8.5))
sketch1.addConstraint(Sketcher.Constraint("DistanceX", 42, 1, 42, 2, 10.5))
sketch1.addConstraint(Sketcher.Constraint("DistanceX", 62, 2, 62, 1, 3.5))
sketch1.addConstraint(Sketcher.Constraint("DistanceY", 15, 1, 15, 2, 5.5))
sketch1.addConstraint(Sketcher.Constraint("DistanceY", 23, 1, 23, 2, 4.5))
sketch1.addConstraint(Sketcher.Constraint("DistanceY", 25, 1, 25, 2, 5.8))
sketch1.addConstraint(Sketcher.Constraint("DistanceY", 45, 2, 45, 1, 6.2))
sketch1.addConstraint(Sketcher.Constraint("DistanceY", 47, 2, 47, 1, 6.1))
sketch1.addConstraint(Sketcher.Constraint("DistanceY", 51, 2, 51, 1, 9.8))
sketch1.addConstraint(Sketcher.Constraint("DistanceY", 56, 1, 56, 2, 7.8))
sketch1.addConstraint(Sketcher.Constraint("DistanceY", 73, 1, 73, 2, 1.5))
sketch1.addConstraint(Sketcher.Constraint("DistanceY", -1, 1, 15, 2, 20.0))
sketch1.addConstraint(Sketcher.Constraint("DistanceY", -1, 1, 53, 1, 15.0))
sketch1.addConstraint(Sketcher.Constraint("DistanceX", -1, 1, 55, 1, 31.0))
sketch1.addConstraint(Sketcher.Constraint("DistanceX", 18, 2, 18, 1, 6.25))
sketch1.addConstraint(Sketcher.Constraint("DistanceY", 29, 2, 29, 1, 3.85))
sketch1.addConstraint(Sketcher.Constraint("DistanceX", -1, 1, 69, 3, 9.5))
sketch1.addConstraint(Sketcher.Constraint("DistanceY", -1, 1, 69, 3, 52.3))
sketch1.addConstraint(Sketcher.Constraint("DistanceX", -1, 1, 63, 1, 28.5))
sketch1.addConstraint(Sketcher.Constraint("DistanceY", -1, 1, 70, 1, 43.8))
sketch1.addConstraint(Sketcher.Constraint("DistanceY", -1, 1, 78, 1, 38.4))
sketch1.addConstraint(Sketcher.Constraint("DistanceX", -1, 1, 80, 1, 58.7))
pad1 = body.newObject("PartDesign::Pad", "Pad")
pad1.Profile = sketch1
pad1.Length = 3
pad1.Reversed = True

doc.recompute()
